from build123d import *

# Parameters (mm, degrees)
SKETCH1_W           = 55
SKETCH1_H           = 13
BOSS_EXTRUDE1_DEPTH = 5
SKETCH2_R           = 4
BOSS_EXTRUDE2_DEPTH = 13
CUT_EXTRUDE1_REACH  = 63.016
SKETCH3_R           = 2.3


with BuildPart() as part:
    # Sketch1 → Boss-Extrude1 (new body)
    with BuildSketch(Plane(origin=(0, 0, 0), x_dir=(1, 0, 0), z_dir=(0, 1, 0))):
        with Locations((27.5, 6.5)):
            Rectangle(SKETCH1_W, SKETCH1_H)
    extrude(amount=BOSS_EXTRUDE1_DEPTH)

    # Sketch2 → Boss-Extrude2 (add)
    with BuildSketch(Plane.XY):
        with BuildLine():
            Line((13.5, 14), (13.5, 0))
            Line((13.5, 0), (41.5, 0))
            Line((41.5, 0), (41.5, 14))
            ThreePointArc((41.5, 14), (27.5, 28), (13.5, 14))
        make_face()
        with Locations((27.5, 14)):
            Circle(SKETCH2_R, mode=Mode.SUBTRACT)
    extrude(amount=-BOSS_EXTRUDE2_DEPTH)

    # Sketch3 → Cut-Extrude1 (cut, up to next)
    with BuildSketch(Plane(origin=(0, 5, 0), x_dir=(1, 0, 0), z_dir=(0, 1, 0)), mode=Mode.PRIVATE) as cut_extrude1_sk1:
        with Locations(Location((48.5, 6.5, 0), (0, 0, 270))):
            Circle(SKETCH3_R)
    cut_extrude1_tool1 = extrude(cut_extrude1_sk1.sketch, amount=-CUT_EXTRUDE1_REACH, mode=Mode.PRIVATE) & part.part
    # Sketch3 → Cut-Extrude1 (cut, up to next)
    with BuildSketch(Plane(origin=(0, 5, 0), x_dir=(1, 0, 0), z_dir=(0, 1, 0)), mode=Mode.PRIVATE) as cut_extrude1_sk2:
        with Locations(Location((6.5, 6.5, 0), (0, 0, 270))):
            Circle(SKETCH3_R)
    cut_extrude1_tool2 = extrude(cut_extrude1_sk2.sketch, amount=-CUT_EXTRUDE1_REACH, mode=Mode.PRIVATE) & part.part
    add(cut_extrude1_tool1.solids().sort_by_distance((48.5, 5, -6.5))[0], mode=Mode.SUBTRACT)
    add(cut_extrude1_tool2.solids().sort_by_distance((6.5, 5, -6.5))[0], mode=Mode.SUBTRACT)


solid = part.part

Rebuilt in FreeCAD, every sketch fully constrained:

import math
import FreeCAD as App
import Part
import Sketcher

V = App.Vector
Q = App.Units.Quantity


def add_polygon(sketch, points):
    """Adds a closed chain of lines whose ends are joined by coincident constraints."""
    first, n = sketch.GeometryCount, len(points)
    for a, b in zip(points, points[1:] + points[:1]):
        sketch.addGeometry(Part.LineSegment(App.Vector(*a, 0), App.Vector(*b, 0)), False)
    for i in range(n):
        sketch.addConstraint(Sketcher.Constraint("Coincident", first + i, 2, first + (i + 1) % n, 1))

doc = App.newDocument("Part")
body = doc.addObject("PartDesign::Body", "Body")

sketch1 = body.newObject("Sketcher::SketchObject", "Sketch")
sketch1.AttachmentSupport = (doc.getObject("XZ_Plane"), [""])
sketch1.MapMode = "FlatFace"
add_polygon(sketch1, [(0, -13), (0, 0), (55, 0), (55, -13)])
sketch1.addConstraint(Sketcher.Constraint("Vertical", 0))
sketch1.addConstraint(Sketcher.Constraint("Horizontal", 1))
sketch1.addConstraint(Sketcher.Constraint("Vertical", 2))
sketch1.addConstraint(Sketcher.Constraint("Horizontal", 3))
sketch1.addConstraint(Sketcher.Constraint("Coincident", 0, 2, -1, 1))
sketch1.addConstraint(Sketcher.Constraint("DistanceX", 1, 1, 1, 2, Q("55 mm")))
sketch1.addConstraint(Sketcher.Constraint("DistanceY", 0, 1, 0, 2, Q("13 mm")))
pad1 = body.newObject("PartDesign::Pad", "Pad")
pad1.Profile = sketch1
pad1.Length = 5
pad1.Reversed = True

sketch2 = body.newObject("Sketcher::SketchObject", "Sketch001")
sketch2.AttachmentSupport = (doc.getObject("XY_Plane"), [""])
sketch2.MapMode = "FlatFace"
sketch2.addGeometry(Part.LineSegment(V(13.5, 14, 0), V(13.5, 0, 0)), False)
sketch2.addGeometry(Part.LineSegment(V(13.5, 0, 0), V(41.5, 0, 0)), False)
sketch2.addGeometry(Part.LineSegment(V(41.5, 0, 0), V(41.5, 14, 0)), False)
sketch2.addGeometry(Part.ArcOfCircle(Part.Circle(V(27.5, 14, 0), V(0, 0, 1), 14), math.radians(0), math.radians(180)), False)
sketch2.addGeometry(Part.Circle(V(27.5, 14, 0), V(0, 0, 1), 4), False)
sketch2.addConstraint(Sketcher.Constraint("Coincident", 0, 2, 1, 1))
sketch2.addConstraint(Sketcher.Constraint("Coincident", 1, 2, 2, 1))
sketch2.addConstraint(Sketcher.Constraint("Tangent", 2, 2, 3, 1))
sketch2.addConstraint(Sketcher.Constraint("Tangent", 3, 2, 0, 1))
sketch2.addConstraint(Sketcher.Constraint("Vertical", 0))
sketch2.addConstraint(Sketcher.Constraint("Horizontal", 1))
sketch2.addConstraint(Sketcher.Constraint("Vertical", 2))
sketch2.addConstraint(Sketcher.Constraint("Coincident", 4, 3, 3, 3))
sketch2.addConstraint(Sketcher.Constraint("PointOnObject", 0, 2, -1))
sketch2.addConstraint(Sketcher.Constraint("Diameter", 4, Q("8 mm")))
sketch2.addConstraint(Sketcher.Constraint("Radius", 3, Q("14 mm")))
sketch2.addConstraint(Sketcher.Constraint("DistanceY", 0, 2, 0, 1, Q("14 mm")))
sketch2.addConstraint(Sketcher.Constraint("DistanceX", -1, 1, 3, 3, Q("27.5 mm")))
pad2 = body.newObject("PartDesign::Pad", "Pad001")
pad2.Profile = sketch2
pad2.Length = 13
pad2.Reversed = True

sketch3 = body.newObject("Sketcher::SketchObject", "Sketch002")
sketch3.AttachmentSupport = (doc.getObject("XZ_Plane"), [""])
sketch3.MapMode = "FlatFace"
sketch3.AttachmentOffset = App.Placement(V(0, 0, -5), App.Rotation())
sketch3.addGeometry(Part.Circle(V(48.5, -6.5, 0), V(0, 0, 1), 2.3), False)
sketch3.addConstraint(Sketcher.Constraint("Diameter", 0, Q("4.6 mm")))
sketch3.addConstraint(Sketcher.Constraint("DistanceX", -1, 1, 0, 3, Q("48.5 mm")))
sketch3.addConstraint(Sketcher.Constraint("DistanceY", 0, 3, -1, 1, Q("6.5 mm")))
pocket1 = body.newObject("PartDesign::Pocket", "Pocket")
pocket1.Profile = sketch3
pocket1.Type = "UpToFirst"
pocket1.Reversed = True

sketch4 = body.newObject("Sketcher::SketchObject", "Sketch003")
sketch4.AttachmentSupport = (doc.getObject("XZ_Plane"), [""])
sketch4.MapMode = "FlatFace"
sketch4.AttachmentOffset = App.Placement(V(0, 0, -5), App.Rotation())
sketch4.addGeometry(Part.Circle(V(6.5, -6.5, 0), V(0, 0, 1), 2.3), False)
sketch4.addConstraint(Sketcher.Constraint("Diameter", 0, Q("4.6 mm")))
sketch4.addConstraint(Sketcher.Constraint("DistanceX", -1, 1, 0, 3, Q("6.5 mm")))
sketch4.addConstraint(Sketcher.Constraint("DistanceY", 0, 3, -1, 1, Q("6.5 mm")))
pocket2 = body.newObject("PartDesign::Pocket", "Pocket001")
pocket2.Profile = sketch4
pocket2.Type = "UpToFirst"
pocket2.Reversed = True

doc.recompute()
